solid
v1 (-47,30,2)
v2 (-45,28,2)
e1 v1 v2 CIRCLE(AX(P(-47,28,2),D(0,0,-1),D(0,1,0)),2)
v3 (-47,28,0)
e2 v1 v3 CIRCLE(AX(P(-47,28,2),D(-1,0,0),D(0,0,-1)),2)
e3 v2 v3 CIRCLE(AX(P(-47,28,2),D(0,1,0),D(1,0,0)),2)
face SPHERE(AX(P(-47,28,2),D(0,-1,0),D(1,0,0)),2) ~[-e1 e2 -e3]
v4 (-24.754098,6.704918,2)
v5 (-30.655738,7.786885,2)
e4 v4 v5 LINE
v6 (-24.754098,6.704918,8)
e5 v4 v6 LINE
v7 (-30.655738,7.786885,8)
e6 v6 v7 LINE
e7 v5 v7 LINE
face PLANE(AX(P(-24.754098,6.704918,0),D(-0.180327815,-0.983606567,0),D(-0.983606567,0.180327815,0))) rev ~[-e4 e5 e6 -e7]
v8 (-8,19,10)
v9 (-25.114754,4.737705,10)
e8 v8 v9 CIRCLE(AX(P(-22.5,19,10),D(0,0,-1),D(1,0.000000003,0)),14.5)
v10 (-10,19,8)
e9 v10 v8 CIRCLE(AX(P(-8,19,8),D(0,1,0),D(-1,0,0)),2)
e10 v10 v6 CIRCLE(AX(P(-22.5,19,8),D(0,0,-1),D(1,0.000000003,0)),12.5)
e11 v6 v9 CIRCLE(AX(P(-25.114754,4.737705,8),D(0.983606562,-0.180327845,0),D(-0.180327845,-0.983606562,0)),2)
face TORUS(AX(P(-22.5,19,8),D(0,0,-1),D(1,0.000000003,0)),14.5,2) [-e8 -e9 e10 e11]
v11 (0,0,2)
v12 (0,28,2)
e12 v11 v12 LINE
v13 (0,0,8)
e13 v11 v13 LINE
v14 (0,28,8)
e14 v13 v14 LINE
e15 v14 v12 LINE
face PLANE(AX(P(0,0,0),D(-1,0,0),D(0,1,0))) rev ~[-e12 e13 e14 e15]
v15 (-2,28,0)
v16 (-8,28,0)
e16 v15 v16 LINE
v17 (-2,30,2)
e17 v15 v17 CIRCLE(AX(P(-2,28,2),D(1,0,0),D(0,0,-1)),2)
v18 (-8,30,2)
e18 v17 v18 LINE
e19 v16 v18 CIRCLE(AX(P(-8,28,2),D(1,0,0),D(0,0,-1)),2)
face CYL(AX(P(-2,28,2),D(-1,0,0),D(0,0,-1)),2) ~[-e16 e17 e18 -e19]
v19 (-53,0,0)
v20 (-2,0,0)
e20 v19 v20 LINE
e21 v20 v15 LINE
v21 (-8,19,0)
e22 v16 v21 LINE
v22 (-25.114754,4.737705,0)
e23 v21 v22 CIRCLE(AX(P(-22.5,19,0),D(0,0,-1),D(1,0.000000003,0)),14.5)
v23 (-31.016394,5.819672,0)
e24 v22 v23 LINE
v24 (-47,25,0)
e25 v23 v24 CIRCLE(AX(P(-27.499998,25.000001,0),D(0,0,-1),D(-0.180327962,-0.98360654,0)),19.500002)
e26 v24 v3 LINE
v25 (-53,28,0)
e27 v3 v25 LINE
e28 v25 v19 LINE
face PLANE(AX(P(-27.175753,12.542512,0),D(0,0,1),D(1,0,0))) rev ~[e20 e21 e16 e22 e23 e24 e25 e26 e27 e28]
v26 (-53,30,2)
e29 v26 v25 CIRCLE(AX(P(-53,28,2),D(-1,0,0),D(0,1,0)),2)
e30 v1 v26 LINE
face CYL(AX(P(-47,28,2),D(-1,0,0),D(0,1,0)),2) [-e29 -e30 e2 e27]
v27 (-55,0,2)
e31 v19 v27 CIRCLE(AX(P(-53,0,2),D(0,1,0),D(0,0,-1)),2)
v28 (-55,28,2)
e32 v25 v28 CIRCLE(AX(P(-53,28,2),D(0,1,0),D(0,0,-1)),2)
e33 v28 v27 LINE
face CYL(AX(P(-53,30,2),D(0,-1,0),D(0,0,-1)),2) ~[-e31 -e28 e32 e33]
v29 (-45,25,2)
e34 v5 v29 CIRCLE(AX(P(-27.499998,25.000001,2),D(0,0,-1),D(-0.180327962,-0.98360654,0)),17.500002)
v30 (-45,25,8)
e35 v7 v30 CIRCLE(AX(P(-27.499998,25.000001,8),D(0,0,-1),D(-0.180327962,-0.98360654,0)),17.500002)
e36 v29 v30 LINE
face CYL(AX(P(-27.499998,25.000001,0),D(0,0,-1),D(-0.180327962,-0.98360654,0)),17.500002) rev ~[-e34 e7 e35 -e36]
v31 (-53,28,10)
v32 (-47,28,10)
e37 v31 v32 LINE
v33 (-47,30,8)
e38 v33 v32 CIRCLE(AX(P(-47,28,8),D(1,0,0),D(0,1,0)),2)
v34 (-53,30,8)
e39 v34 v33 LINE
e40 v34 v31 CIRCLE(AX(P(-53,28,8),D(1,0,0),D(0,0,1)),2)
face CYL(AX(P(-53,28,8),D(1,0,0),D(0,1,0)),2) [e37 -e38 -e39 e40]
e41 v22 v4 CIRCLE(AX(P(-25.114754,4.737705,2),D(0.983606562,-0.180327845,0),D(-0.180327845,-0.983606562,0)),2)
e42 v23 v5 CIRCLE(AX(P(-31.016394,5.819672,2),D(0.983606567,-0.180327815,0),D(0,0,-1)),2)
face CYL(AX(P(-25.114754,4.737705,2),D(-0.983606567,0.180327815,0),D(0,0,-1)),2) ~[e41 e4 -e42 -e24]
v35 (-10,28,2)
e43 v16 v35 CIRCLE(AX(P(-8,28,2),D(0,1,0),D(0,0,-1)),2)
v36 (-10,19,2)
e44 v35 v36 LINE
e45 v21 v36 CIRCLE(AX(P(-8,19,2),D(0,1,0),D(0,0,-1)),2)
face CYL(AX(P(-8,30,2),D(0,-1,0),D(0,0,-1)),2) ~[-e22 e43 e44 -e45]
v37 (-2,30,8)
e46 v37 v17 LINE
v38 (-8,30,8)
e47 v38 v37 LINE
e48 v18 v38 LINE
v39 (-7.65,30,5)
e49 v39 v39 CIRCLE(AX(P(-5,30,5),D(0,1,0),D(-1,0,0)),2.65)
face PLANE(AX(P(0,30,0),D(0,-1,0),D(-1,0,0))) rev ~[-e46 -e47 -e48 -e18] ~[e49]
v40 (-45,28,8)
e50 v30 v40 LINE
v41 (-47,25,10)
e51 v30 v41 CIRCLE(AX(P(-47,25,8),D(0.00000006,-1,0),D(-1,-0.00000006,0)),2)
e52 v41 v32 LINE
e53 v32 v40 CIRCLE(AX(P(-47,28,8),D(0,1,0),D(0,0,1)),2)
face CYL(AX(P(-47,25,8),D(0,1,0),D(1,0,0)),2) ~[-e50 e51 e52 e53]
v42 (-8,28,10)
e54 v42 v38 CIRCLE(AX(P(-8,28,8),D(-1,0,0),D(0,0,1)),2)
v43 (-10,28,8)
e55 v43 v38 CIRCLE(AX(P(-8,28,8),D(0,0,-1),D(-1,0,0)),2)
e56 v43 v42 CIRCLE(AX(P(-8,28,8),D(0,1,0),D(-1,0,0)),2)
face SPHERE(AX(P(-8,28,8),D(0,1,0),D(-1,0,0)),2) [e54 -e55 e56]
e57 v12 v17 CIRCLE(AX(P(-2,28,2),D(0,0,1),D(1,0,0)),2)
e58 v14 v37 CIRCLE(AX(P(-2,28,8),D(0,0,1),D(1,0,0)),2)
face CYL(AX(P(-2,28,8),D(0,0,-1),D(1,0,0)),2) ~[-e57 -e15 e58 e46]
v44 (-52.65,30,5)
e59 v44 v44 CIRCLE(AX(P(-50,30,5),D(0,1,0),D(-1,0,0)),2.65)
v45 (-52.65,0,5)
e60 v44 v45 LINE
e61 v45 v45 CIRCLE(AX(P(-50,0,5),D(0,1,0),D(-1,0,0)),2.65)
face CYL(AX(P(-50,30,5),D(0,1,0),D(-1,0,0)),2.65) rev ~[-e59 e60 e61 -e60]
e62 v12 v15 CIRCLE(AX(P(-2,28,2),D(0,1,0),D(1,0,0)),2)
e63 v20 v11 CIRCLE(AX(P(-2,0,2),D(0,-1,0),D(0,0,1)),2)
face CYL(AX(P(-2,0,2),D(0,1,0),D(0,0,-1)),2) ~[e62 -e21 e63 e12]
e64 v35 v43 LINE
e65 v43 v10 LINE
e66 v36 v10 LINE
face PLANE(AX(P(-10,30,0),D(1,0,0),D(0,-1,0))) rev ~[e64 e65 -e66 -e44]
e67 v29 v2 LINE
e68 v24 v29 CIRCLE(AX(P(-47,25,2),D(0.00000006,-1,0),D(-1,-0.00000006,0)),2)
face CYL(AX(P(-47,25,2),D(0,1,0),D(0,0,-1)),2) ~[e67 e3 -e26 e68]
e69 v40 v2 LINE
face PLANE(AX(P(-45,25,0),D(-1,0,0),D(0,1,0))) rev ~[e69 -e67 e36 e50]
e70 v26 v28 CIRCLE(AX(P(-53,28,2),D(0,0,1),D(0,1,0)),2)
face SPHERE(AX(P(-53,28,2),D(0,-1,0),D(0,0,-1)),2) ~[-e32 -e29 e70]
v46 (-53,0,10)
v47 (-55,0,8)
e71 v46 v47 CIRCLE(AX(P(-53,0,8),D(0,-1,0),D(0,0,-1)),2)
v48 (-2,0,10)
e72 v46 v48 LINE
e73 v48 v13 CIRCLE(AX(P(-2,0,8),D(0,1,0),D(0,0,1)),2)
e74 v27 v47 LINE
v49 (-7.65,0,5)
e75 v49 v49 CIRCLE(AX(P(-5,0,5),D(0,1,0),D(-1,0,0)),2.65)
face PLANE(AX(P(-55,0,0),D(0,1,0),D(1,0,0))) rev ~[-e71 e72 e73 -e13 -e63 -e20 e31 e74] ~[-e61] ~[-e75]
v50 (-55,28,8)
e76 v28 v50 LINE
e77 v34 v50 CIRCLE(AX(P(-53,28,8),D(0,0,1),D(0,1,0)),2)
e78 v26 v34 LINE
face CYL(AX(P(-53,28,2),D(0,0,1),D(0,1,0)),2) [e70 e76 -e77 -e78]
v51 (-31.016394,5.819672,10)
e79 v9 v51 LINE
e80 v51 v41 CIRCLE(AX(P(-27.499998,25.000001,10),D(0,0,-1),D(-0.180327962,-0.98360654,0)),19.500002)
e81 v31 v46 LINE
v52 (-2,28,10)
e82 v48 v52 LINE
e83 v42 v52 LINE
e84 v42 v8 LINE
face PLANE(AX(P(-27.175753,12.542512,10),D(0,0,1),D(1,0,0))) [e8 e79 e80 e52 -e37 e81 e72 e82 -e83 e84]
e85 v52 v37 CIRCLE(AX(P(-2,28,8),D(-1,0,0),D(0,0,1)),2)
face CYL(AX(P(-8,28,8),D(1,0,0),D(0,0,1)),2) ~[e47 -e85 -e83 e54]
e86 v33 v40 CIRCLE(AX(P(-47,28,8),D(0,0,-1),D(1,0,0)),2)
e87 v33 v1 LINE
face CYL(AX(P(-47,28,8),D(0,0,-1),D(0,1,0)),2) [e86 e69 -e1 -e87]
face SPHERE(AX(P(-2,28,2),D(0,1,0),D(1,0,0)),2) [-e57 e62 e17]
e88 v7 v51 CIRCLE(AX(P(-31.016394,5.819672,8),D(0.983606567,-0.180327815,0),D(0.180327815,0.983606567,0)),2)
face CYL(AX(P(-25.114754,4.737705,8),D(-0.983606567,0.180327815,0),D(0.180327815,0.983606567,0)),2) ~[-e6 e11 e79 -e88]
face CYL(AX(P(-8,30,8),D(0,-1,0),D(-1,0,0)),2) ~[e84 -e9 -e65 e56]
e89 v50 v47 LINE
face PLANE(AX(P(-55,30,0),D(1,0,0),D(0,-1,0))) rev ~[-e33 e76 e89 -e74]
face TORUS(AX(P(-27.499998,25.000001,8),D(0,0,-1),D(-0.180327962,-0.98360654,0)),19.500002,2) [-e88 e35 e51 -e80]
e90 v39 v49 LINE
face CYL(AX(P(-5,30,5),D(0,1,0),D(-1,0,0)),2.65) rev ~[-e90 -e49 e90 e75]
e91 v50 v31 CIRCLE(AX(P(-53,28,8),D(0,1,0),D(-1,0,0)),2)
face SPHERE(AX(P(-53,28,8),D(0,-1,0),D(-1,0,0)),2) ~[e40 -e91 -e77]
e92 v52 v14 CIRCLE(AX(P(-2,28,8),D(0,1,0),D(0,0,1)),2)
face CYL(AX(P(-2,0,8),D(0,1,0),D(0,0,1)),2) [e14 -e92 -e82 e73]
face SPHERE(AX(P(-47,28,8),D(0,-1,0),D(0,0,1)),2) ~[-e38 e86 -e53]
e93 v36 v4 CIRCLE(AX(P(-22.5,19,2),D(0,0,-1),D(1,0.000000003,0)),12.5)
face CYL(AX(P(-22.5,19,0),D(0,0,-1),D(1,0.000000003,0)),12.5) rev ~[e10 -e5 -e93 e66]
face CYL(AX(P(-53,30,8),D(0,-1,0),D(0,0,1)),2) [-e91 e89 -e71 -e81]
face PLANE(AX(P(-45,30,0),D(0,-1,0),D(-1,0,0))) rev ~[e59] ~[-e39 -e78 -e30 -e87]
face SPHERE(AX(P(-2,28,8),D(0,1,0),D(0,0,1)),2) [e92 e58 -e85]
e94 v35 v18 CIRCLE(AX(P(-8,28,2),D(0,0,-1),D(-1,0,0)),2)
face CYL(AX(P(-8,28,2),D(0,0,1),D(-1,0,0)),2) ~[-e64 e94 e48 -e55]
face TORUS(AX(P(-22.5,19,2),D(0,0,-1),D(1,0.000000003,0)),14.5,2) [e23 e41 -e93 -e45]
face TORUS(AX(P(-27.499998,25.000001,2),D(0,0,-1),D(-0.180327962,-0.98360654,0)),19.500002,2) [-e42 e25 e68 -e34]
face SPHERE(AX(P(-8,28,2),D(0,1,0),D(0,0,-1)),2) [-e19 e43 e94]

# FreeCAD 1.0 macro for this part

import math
import FreeCAD as App
import Part
import Sketcher
from FreeCAD import Vector


def edges_at(feature, points):
    """Names of the edges that pass closest to the given points."""
    edges = feature.Shape.Edges
    near = lambda p: min(range(len(edges)), key=lambda i: edges[i].distToShape(Part.Vertex(*p))[0])
    return sorted({f"Edge{near(p) + 1}" for p in points})

doc = App.newDocument("Part")
body = doc.addObject("PartDesign::Body", "Body")

# Sketch on XY plane
sketch1 = body.newObject("Sketcher::SketchObject", "Sketch")
sketch1.AttachmentSupport = (doc.getObject("XY_Plane"), [""])
sketch1.MapMode = "FlatFace"
sketch1.addGeometry(Part.LineSegment(Vector(-10, 30, 0), Vector(-10, 19, 0)), False)
sketch1.addGeometry(Part.ArcOfCircle(Part.Circle(Vector(-22.5, 19, 0), Vector(0, 0, 1), 12.5), math.radians(-100.388856), math.radians(0)), False)
sketch1.addGeometry(Part.LineSegment(Vector(-24.754098, 6.704918, 0), Vector(-30.655738, 7.786885, 0)), False)
sketch1.addGeometry(Part.ArcOfCircle(Part.Circle(Vector(-27.499998, 25.000001, 0), Vector(0, 0, 1), 17.500002), math.radians(-179.999997), math.radians(-100.388863)), False)
sketch1.addGeometry(Part.LineSegment(Vector(-45, 25, 0), Vector(-45, 30, 0)), False)
sketch1.addGeometry(Part.LineSegment(Vector(-45, 30, 0), Vector(-55, 30, 0)), False)
sketch1.addGeometry(Part.LineSegment(Vector(-55, 30, 0), Vector(-55, 0, 0)), False)
sketch1.addGeometry(Part.LineSegment(Vector(-55, 0, 0), Vector(0, 0, 0)), False)
sketch1.addGeometry(Part.LineSegment(Vector(0, 0, 0), Vector(0, 30, 0)), False)
sketch1.addGeometry(Part.LineSegment(Vector(0, 30, 0), Vector(-10, 30, 0)), False)
sketch1.addConstraint(Sketcher.Constraint("Tangent", 0, 2, 1, 2))
sketch1.addConstraint(Sketcher.Constraint("Tangent", 1, 1, 2, 1))
sketch1.addConstraint(Sketcher.Constraint("Tangent", 2, 2, 3, 2))
sketch1.addConstraint(Sketcher.Constraint("Tangent", 3, 1, 4, 1))
sketch1.addConstraint(Sketcher.Constraint("Coincident", 4, 2, 5, 1))
sketch1.addConstraint(Sketcher.Constraint("Coincident", 5, 2, 6, 1))
sketch1.addConstraint(Sketcher.Constraint("Coincident", 6, 2, 7, 1))
sketch1.addConstraint(Sketcher.Constraint("Coincident", 7, 2, 8, 1))
sketch1.addConstraint(Sketcher.Constraint("Coincident", 8, 2, 9, 1))
sketch1.addConstraint(Sketcher.Constraint("Coincident", 9, 2, 0, 1))
sketch1.addConstraint(Sketcher.Constraint("Vertical", 0))
sketch1.addConstraint(Sketcher.Constraint("Vertical", 4))
sketch1.addConstraint(Sketcher.Constraint("Horizontal", 5))
sketch1.addConstraint(Sketcher.Constraint("Vertical", 6))
sketch1.addConstraint(Sketcher.Constraint("Horizontal", 7))
sketch1.addConstraint(Sketcher.Constraint("Vertical", 8))
sketch1.addConstraint(Sketcher.Constraint("Horizontal", 9))
sketch1.addConstraint(Sketcher.Constraint("Coincident", 7, 2, -1, 1))
sketch1.addConstraint(Sketcher.Constraint("Horizontal", 5, 2, 8, 2))
sketch1.addConstraint(Sketcher.Constraint("Equal", 5, 9))
sketch1.addConstraint(Sketcher.Constraint("Radius", 1, 12.5))
sketch1.addConstraint(Sketcher.Constraint("Radius", 3, 17.500002))
sketch1.addConstraint(Sketcher.Constraint("DistanceX", 5, 2, 5, 1, 10.0))
sketch1.addConstraint(Sketcher.Constraint("DistanceX", 7, 1, 7, 2, 55.0))
sketch1.addConstraint(Sketcher.Constraint("DistanceY", 0, 2, 0, 1, 11.0))
sketch1.addConstraint(Sketcher.Constraint("DistanceY", 4, 1, 4, 2, 5.0))
sketch1.addConstraint(Sketcher.Constraint("DistanceY", 6, 2, 6, 1, 30.0))
pad1 = body.newObject("PartDesign::Pad", "Pad")
pad1.Profile = sketch1
pad1.Length = 10

# Sketch on XZ plane
sketch2 = body.newObject("Sketcher::SketchObject", "Sketch001")
sketch2.AttachmentSupport = (doc.getObject("XZ_Plane"), [""])
sketch2.MapMode = "FlatFace"
sketch2.AttachmentOffset = App.Placement(Vector(0, 0, -30), App.Rotation())
sketch2.addGeometry(Part.Circle(Vector(-50, 5, 0), Vector(0, 0, 1), 2.65), False)
sketch2.addConstraint(Sketcher.Constraint("Diameter", 0, 5.3))
sketch2.addConstraint(Sketcher.Constraint("DistanceX", 0, 3, -1, 1, 50.0))
sketch2.addConstraint(Sketcher.Constraint("DistanceY", -1, 1, 0, 3, 5.0))
pocket1 = body.newObject("PartDesign::Pocket", "Pocket")
pocket1.Profile = sketch2
pocket1.Type = "ThroughAll"
pocket1.Reversed = True

# Sketch on XZ plane
sketch3 = body.newObject("Sketcher::SketchObject", "Sketch002")
sketch3.AttachmentSupport = (doc.getObject("XZ_Plane"), [""])
sketch3.MapMode = "FlatFace"
sketch3.AttachmentOffset = App.Placement(Vector(0, 0, -30), App.Rotation())
sketch3.addGeometry(Part.Circle(Vector(-5, 5, 0), Vector(0, 0, 1), 2.65), False)
sketch3.addConstraint(Sketcher.Constraint("Diameter", 0, 5.3))
sketch3.addConstraint(Sketcher.Constraint("DistanceX", 0, 3, -1, 1, 5.0))
sketch3.addConstraint(Sketcher.Constraint("DistanceY", -1, 1, 0, 3, 5.0))
pocket2 = body.newObject("PartDesign::Pocket", "Pocket001")
pocket2.Profile = sketch3
pocket2.Type = "ThroughAll"
pocket2.Reversed = True
doc.recompute()

fillet = body.newObject("PartDesign::Fillet", "Fillet")
fillet.Base = (pocket2, edges_at(pocket2, [
    (-55, 15, 10),
    (0, 15, 10),
    (0, 15, 0),
    (-55, 15, 0),
    (-40.944, 13.797, 0),
    (-14.498, 9.397, 10),
]))
fillet.Radius = 2
doc.recompute()

fillet2 = body.newObject("PartDesign::Fillet", "Fillet001")
fillet2.Base = (fillet, edges_at(fillet, [(-10, 30, 5), (-55, 30, 5)]))
fillet2.Radius = 2

doc.recompute()
